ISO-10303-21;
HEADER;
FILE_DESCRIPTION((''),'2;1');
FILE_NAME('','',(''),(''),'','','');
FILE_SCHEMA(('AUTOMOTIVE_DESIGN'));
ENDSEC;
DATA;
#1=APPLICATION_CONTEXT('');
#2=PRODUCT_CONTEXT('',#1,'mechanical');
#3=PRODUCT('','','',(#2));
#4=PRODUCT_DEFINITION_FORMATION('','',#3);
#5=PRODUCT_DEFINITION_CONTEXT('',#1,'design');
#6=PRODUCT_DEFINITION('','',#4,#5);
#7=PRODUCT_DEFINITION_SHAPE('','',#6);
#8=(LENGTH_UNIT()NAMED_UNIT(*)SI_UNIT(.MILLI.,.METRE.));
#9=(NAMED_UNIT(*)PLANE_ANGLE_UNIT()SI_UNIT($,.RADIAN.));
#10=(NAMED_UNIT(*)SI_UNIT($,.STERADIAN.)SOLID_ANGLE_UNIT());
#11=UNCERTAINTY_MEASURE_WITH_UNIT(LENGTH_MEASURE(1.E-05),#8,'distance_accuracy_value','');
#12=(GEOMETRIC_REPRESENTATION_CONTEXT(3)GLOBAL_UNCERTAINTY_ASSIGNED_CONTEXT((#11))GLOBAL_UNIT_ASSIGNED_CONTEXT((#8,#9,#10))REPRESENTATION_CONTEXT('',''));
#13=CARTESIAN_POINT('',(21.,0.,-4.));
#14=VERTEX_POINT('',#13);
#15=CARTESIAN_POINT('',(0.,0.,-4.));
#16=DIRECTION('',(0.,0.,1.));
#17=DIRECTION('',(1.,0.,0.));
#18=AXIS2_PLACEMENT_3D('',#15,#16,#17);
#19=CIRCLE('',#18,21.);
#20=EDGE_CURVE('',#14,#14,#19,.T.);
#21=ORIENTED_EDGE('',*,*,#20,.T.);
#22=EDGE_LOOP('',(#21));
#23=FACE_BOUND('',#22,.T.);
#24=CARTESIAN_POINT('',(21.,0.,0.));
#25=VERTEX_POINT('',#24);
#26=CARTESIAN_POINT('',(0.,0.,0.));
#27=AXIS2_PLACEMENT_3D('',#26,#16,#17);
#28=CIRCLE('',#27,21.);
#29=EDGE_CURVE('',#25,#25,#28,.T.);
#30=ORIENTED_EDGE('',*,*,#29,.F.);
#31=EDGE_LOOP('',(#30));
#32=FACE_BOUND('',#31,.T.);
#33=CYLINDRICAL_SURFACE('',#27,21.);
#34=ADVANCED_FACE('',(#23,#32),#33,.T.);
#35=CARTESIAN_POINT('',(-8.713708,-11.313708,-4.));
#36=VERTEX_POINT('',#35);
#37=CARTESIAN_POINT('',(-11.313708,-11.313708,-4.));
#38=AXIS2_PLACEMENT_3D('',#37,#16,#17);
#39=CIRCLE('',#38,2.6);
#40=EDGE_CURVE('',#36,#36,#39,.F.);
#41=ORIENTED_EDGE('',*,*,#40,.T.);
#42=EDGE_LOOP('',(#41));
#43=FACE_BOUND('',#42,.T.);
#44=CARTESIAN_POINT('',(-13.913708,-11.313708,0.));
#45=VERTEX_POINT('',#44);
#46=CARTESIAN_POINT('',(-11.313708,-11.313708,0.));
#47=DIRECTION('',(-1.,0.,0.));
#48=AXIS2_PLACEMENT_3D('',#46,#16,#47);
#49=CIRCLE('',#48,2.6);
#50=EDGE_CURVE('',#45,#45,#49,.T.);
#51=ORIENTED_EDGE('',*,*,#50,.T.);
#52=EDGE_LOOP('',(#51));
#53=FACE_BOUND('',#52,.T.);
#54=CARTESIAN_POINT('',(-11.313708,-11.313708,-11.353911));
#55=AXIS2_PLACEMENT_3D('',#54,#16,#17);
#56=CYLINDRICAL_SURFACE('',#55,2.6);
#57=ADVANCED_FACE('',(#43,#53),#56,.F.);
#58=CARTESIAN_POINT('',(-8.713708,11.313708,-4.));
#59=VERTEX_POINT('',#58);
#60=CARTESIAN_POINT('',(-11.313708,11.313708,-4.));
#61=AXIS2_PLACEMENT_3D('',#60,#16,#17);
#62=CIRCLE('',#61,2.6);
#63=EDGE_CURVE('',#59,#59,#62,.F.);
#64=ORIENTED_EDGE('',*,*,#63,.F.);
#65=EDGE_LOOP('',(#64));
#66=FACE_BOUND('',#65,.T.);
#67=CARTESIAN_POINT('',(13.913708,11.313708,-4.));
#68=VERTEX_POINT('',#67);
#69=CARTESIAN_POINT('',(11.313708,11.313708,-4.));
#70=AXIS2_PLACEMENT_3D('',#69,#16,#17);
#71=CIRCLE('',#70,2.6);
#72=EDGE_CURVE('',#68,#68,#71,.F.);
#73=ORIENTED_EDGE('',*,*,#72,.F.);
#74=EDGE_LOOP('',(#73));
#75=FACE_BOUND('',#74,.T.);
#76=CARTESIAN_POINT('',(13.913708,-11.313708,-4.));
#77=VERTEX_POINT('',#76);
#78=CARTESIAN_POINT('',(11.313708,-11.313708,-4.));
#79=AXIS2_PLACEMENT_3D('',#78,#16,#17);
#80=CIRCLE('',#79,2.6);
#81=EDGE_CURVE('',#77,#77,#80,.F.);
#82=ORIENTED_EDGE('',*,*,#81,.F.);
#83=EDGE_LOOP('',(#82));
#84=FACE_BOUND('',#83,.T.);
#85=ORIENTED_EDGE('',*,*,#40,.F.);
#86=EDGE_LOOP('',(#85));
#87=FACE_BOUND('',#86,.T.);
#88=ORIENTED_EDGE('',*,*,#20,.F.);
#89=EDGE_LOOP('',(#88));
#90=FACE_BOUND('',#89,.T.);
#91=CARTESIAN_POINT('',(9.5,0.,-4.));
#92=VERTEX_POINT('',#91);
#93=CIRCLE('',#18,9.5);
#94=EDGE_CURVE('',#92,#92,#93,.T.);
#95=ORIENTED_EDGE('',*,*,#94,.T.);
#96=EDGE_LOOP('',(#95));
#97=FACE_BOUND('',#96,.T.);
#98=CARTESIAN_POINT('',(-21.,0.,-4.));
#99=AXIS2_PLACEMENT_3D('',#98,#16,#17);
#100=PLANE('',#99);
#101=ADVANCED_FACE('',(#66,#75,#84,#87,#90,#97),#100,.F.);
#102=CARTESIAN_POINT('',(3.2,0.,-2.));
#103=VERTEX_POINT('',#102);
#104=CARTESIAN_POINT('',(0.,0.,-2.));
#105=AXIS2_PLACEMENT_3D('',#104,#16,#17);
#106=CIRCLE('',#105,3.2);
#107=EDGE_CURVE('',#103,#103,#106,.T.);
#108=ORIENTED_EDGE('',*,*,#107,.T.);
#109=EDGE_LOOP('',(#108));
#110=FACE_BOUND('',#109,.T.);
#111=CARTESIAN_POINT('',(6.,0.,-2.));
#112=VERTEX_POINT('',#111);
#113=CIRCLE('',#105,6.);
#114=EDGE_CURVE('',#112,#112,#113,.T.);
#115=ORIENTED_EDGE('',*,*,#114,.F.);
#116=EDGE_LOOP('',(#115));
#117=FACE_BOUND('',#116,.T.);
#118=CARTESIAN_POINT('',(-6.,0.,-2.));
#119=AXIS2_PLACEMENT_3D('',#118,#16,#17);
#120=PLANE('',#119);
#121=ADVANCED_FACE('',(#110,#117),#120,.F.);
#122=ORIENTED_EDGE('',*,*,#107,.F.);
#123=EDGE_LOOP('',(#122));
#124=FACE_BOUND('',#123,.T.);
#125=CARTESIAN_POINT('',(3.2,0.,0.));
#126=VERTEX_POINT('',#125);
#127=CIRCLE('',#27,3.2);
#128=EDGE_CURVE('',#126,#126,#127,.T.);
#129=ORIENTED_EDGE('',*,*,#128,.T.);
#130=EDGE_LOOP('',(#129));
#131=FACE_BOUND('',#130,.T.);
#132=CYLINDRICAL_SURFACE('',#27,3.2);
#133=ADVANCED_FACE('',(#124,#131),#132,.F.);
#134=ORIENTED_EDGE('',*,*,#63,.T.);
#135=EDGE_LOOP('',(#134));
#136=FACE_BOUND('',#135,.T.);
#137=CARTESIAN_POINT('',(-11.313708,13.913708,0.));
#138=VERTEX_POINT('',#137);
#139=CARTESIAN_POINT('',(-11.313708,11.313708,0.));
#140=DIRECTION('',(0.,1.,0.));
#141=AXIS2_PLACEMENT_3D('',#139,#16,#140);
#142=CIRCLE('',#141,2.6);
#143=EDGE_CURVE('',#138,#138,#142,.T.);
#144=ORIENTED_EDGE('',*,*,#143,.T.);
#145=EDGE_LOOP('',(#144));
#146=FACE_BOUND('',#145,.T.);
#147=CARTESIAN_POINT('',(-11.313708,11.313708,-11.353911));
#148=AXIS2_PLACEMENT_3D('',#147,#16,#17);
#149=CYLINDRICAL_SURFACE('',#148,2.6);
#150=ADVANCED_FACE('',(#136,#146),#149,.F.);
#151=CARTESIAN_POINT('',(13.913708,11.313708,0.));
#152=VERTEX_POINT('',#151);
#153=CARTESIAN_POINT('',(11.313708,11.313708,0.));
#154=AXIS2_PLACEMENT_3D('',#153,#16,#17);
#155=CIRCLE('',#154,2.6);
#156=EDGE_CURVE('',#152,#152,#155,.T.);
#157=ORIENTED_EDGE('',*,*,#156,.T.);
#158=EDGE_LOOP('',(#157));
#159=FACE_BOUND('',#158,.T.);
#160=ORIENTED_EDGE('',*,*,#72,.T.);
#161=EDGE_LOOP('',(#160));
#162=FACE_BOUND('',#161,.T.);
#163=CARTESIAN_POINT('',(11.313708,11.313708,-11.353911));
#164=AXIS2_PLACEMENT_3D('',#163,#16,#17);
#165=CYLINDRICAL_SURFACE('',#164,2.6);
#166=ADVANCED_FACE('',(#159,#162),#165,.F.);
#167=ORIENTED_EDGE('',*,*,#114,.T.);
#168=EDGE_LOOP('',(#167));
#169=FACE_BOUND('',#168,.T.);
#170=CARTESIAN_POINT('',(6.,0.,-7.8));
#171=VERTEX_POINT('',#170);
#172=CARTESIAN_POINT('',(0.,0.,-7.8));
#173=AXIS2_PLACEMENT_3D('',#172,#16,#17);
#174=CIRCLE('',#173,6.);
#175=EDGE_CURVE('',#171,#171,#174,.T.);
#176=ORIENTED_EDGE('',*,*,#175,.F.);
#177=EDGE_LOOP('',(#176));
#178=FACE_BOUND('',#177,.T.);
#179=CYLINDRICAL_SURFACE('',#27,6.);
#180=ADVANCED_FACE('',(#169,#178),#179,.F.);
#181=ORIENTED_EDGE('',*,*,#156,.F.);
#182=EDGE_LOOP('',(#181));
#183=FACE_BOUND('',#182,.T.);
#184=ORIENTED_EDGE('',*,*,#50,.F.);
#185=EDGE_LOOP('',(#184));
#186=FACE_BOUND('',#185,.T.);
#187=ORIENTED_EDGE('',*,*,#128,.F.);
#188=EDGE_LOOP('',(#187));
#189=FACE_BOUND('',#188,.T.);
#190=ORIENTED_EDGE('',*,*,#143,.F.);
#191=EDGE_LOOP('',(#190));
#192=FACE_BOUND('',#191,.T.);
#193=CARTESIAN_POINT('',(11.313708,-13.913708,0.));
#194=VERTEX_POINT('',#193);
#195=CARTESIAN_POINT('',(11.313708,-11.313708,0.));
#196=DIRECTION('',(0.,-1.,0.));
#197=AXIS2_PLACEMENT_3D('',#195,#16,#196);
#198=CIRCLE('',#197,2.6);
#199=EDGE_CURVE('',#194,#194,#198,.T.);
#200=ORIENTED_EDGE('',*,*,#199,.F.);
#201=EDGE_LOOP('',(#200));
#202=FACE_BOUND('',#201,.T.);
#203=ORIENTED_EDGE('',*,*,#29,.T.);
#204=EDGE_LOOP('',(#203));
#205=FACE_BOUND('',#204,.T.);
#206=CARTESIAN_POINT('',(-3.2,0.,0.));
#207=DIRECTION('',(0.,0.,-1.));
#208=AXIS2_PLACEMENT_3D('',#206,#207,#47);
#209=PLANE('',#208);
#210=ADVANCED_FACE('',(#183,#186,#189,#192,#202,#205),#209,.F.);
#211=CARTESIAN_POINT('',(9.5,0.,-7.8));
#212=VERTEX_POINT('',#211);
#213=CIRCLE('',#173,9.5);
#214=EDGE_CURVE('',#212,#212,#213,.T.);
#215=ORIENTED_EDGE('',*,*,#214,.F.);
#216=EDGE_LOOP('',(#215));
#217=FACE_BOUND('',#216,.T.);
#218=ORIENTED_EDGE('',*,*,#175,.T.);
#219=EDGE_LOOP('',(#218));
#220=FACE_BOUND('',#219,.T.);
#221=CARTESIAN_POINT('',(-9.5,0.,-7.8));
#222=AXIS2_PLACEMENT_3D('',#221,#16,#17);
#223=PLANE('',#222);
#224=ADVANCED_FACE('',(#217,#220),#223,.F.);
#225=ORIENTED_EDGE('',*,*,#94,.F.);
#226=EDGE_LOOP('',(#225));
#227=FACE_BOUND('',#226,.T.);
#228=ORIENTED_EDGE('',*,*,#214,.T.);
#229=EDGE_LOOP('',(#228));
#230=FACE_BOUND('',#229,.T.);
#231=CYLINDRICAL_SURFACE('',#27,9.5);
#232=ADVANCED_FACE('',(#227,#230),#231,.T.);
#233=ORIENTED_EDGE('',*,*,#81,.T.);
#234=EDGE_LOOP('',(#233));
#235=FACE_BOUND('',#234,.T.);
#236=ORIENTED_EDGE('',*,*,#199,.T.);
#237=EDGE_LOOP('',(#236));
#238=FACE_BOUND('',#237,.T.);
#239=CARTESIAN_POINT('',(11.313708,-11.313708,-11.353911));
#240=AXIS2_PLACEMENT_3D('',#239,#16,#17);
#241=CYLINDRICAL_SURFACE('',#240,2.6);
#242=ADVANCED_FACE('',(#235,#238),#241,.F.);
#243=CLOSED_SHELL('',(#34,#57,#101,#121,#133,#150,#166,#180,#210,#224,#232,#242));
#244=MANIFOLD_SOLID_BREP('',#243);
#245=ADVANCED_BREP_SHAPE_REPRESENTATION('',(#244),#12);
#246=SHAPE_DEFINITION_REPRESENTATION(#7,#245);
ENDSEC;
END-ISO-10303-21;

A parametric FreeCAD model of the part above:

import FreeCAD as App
import Part
import Sketcher

V = App.Vector

doc = App.newDocument("Part")
body = doc.addObject("PartDesign::Body", "Body")

sketch1 = body.newObject("Sketcher::SketchObject", "Sketch")
sketch1.AttachmentSupport = (doc.getObject("XZ_Plane"), [""])
sketch1.MapMode = "FlatFace"
sketch1.addGeometry(Part.LineSegment(V(-21, 0, 0), V(-3.2, 0, 0)), False)
sketch1.addGeometry(Part.LineSegment(V(-3.2, 0, 0), V(-3.2, -2, 0)), False)
sketch1.addGeometry(Part.LineSegment(V(-3.2, -2, 0), V(-6, -2, 0)), False)
sketch1.addGeometry(Part.LineSegment(V(-6, -2, 0), V(-6, -7.8, 0)), False)
sketch1.addGeometry(Part.LineSegment(V(-6, -7.8, 0), V(-9.5, -7.8, 0)), False)
sketch1.addGeometry(Part.LineSegment(V(-9.5, -7.8, 0), V(-9.5, -4, 0)), False)
sketch1.addGeometry(Part.LineSegment(V(-9.5, -4, 0), V(-21, -4, 0)), False)
sketch1.addGeometry(Part.LineSegment(V(-21, -4, 0), V(-21, 0, 0)), False)
sketch1.addConstraint(Sketcher.Constraint("Coincident", 0, 2, 1, 1))
sketch1.addConstraint(Sketcher.Constraint("Coincident", 1, 2, 2, 1))
sketch1.addConstraint(Sketcher.Constraint("Coincident", 2, 2, 3, 1))
sketch1.addConstraint(Sketcher.Constraint("Coincident", 3, 2, 4, 1))
sketch1.addConstraint(Sketcher.Constraint("Coincident", 4, 2, 5, 1))
sketch1.addConstraint(Sketcher.Constraint("Coincident", 5, 2, 6, 1))
sketch1.addConstraint(Sketcher.Constraint("Coincident", 6, 2, 7, 1))
sketch1.addConstraint(Sketcher.Constraint("Coincident", 7, 2, 0, 1))
sketch1.addConstraint(Sketcher.Constraint("Horizontal", 0))
sketch1.addConstraint(Sketcher.Constraint("Vertical", 1))
sketch1.addConstraint(Sketcher.Constraint("Horizontal", 2))
sketch1.addConstraint(Sketcher.Constraint("Vertical", 3))
sketch1.addConstraint(Sketcher.Constraint("Horizontal", 4))
sketch1.addConstraint(Sketcher.Constraint("Vertical", 5))
sketch1.addConstraint(Sketcher.Constraint("Horizontal", 6))
sketch1.addConstraint(Sketcher.Constraint("Vertical", 7))
sketch1.addConstraint(Sketcher.Constraint("PointOnObject", 0, 2, -1))
sketch1.addConstraint(Sketcher.Constraint("DistanceY", 1, 2, 1, 1, 2.0))
sketch1.addConstraint(Sketcher.Constraint("DistanceY", 7, 1, 7, 2, 4.0))
sketch1.addConstraint(Sketcher.Constraint("DistanceX", 0, 1, 0, 2, 17.8))
sketch1.addConstraint(Sketcher.Constraint("DistanceX", 2, 2, 2, 1, 2.8))
sketch1.addConstraint(Sketcher.Constraint("DistanceX", 4, 2, 4, 1, 3.5))
sketch1.addConstraint(Sketcher.Constraint("DistanceY", 3, 2, 3, 1, 5.8))
sketch1.addConstraint(Sketcher.Constraint("DistanceX", 2, 2, -1, 1, 6.0))
revolution = body.newObject("PartDesign::Revolution", "Revolution")
revolution.Profile = sketch1
revolution.ReferenceAxis = (sketch1, ["V_Axis"])
revolution.Angle = 360

sketch2 = body.newObject("Sketcher::SketchObject", "Sketch001")
sketch2.AttachmentSupport = (doc.getObject("XY_Plane"), [""])
sketch2.MapMode = "FlatFace"
sketch2.addGeometry(Part.Circle(V(11.3, 11.3, 0), V(0, 0, 1), 2.6), False)
sketch2.addConstraint(Sketcher.Constraint("Diameter", 0, 5.2))
sketch2.addConstraint(Sketcher.Constraint("DistanceX", -1, 1, 0, 3, 11.313708))
sketch2.addConstraint(Sketcher.Constraint("DistanceY", -1, 1, 0, 3, 11.313708))
pocket1 = body.newObject("PartDesign::Pocket", "Pocket")
pocket1.Profile = sketch2
pocket1.Length = 4
doc.recompute()

polarpattern = body.newObject("PartDesign::PolarPattern", "PolarPattern")
polarpattern.Originals = [pocket1]
polarpattern.Axis = (doc.getObject("Z_Axis"), [""])
polarpattern.Angle = 360
polarpattern.Occurrences = 4
body.Tip = polarpattern

doc.recompute()
